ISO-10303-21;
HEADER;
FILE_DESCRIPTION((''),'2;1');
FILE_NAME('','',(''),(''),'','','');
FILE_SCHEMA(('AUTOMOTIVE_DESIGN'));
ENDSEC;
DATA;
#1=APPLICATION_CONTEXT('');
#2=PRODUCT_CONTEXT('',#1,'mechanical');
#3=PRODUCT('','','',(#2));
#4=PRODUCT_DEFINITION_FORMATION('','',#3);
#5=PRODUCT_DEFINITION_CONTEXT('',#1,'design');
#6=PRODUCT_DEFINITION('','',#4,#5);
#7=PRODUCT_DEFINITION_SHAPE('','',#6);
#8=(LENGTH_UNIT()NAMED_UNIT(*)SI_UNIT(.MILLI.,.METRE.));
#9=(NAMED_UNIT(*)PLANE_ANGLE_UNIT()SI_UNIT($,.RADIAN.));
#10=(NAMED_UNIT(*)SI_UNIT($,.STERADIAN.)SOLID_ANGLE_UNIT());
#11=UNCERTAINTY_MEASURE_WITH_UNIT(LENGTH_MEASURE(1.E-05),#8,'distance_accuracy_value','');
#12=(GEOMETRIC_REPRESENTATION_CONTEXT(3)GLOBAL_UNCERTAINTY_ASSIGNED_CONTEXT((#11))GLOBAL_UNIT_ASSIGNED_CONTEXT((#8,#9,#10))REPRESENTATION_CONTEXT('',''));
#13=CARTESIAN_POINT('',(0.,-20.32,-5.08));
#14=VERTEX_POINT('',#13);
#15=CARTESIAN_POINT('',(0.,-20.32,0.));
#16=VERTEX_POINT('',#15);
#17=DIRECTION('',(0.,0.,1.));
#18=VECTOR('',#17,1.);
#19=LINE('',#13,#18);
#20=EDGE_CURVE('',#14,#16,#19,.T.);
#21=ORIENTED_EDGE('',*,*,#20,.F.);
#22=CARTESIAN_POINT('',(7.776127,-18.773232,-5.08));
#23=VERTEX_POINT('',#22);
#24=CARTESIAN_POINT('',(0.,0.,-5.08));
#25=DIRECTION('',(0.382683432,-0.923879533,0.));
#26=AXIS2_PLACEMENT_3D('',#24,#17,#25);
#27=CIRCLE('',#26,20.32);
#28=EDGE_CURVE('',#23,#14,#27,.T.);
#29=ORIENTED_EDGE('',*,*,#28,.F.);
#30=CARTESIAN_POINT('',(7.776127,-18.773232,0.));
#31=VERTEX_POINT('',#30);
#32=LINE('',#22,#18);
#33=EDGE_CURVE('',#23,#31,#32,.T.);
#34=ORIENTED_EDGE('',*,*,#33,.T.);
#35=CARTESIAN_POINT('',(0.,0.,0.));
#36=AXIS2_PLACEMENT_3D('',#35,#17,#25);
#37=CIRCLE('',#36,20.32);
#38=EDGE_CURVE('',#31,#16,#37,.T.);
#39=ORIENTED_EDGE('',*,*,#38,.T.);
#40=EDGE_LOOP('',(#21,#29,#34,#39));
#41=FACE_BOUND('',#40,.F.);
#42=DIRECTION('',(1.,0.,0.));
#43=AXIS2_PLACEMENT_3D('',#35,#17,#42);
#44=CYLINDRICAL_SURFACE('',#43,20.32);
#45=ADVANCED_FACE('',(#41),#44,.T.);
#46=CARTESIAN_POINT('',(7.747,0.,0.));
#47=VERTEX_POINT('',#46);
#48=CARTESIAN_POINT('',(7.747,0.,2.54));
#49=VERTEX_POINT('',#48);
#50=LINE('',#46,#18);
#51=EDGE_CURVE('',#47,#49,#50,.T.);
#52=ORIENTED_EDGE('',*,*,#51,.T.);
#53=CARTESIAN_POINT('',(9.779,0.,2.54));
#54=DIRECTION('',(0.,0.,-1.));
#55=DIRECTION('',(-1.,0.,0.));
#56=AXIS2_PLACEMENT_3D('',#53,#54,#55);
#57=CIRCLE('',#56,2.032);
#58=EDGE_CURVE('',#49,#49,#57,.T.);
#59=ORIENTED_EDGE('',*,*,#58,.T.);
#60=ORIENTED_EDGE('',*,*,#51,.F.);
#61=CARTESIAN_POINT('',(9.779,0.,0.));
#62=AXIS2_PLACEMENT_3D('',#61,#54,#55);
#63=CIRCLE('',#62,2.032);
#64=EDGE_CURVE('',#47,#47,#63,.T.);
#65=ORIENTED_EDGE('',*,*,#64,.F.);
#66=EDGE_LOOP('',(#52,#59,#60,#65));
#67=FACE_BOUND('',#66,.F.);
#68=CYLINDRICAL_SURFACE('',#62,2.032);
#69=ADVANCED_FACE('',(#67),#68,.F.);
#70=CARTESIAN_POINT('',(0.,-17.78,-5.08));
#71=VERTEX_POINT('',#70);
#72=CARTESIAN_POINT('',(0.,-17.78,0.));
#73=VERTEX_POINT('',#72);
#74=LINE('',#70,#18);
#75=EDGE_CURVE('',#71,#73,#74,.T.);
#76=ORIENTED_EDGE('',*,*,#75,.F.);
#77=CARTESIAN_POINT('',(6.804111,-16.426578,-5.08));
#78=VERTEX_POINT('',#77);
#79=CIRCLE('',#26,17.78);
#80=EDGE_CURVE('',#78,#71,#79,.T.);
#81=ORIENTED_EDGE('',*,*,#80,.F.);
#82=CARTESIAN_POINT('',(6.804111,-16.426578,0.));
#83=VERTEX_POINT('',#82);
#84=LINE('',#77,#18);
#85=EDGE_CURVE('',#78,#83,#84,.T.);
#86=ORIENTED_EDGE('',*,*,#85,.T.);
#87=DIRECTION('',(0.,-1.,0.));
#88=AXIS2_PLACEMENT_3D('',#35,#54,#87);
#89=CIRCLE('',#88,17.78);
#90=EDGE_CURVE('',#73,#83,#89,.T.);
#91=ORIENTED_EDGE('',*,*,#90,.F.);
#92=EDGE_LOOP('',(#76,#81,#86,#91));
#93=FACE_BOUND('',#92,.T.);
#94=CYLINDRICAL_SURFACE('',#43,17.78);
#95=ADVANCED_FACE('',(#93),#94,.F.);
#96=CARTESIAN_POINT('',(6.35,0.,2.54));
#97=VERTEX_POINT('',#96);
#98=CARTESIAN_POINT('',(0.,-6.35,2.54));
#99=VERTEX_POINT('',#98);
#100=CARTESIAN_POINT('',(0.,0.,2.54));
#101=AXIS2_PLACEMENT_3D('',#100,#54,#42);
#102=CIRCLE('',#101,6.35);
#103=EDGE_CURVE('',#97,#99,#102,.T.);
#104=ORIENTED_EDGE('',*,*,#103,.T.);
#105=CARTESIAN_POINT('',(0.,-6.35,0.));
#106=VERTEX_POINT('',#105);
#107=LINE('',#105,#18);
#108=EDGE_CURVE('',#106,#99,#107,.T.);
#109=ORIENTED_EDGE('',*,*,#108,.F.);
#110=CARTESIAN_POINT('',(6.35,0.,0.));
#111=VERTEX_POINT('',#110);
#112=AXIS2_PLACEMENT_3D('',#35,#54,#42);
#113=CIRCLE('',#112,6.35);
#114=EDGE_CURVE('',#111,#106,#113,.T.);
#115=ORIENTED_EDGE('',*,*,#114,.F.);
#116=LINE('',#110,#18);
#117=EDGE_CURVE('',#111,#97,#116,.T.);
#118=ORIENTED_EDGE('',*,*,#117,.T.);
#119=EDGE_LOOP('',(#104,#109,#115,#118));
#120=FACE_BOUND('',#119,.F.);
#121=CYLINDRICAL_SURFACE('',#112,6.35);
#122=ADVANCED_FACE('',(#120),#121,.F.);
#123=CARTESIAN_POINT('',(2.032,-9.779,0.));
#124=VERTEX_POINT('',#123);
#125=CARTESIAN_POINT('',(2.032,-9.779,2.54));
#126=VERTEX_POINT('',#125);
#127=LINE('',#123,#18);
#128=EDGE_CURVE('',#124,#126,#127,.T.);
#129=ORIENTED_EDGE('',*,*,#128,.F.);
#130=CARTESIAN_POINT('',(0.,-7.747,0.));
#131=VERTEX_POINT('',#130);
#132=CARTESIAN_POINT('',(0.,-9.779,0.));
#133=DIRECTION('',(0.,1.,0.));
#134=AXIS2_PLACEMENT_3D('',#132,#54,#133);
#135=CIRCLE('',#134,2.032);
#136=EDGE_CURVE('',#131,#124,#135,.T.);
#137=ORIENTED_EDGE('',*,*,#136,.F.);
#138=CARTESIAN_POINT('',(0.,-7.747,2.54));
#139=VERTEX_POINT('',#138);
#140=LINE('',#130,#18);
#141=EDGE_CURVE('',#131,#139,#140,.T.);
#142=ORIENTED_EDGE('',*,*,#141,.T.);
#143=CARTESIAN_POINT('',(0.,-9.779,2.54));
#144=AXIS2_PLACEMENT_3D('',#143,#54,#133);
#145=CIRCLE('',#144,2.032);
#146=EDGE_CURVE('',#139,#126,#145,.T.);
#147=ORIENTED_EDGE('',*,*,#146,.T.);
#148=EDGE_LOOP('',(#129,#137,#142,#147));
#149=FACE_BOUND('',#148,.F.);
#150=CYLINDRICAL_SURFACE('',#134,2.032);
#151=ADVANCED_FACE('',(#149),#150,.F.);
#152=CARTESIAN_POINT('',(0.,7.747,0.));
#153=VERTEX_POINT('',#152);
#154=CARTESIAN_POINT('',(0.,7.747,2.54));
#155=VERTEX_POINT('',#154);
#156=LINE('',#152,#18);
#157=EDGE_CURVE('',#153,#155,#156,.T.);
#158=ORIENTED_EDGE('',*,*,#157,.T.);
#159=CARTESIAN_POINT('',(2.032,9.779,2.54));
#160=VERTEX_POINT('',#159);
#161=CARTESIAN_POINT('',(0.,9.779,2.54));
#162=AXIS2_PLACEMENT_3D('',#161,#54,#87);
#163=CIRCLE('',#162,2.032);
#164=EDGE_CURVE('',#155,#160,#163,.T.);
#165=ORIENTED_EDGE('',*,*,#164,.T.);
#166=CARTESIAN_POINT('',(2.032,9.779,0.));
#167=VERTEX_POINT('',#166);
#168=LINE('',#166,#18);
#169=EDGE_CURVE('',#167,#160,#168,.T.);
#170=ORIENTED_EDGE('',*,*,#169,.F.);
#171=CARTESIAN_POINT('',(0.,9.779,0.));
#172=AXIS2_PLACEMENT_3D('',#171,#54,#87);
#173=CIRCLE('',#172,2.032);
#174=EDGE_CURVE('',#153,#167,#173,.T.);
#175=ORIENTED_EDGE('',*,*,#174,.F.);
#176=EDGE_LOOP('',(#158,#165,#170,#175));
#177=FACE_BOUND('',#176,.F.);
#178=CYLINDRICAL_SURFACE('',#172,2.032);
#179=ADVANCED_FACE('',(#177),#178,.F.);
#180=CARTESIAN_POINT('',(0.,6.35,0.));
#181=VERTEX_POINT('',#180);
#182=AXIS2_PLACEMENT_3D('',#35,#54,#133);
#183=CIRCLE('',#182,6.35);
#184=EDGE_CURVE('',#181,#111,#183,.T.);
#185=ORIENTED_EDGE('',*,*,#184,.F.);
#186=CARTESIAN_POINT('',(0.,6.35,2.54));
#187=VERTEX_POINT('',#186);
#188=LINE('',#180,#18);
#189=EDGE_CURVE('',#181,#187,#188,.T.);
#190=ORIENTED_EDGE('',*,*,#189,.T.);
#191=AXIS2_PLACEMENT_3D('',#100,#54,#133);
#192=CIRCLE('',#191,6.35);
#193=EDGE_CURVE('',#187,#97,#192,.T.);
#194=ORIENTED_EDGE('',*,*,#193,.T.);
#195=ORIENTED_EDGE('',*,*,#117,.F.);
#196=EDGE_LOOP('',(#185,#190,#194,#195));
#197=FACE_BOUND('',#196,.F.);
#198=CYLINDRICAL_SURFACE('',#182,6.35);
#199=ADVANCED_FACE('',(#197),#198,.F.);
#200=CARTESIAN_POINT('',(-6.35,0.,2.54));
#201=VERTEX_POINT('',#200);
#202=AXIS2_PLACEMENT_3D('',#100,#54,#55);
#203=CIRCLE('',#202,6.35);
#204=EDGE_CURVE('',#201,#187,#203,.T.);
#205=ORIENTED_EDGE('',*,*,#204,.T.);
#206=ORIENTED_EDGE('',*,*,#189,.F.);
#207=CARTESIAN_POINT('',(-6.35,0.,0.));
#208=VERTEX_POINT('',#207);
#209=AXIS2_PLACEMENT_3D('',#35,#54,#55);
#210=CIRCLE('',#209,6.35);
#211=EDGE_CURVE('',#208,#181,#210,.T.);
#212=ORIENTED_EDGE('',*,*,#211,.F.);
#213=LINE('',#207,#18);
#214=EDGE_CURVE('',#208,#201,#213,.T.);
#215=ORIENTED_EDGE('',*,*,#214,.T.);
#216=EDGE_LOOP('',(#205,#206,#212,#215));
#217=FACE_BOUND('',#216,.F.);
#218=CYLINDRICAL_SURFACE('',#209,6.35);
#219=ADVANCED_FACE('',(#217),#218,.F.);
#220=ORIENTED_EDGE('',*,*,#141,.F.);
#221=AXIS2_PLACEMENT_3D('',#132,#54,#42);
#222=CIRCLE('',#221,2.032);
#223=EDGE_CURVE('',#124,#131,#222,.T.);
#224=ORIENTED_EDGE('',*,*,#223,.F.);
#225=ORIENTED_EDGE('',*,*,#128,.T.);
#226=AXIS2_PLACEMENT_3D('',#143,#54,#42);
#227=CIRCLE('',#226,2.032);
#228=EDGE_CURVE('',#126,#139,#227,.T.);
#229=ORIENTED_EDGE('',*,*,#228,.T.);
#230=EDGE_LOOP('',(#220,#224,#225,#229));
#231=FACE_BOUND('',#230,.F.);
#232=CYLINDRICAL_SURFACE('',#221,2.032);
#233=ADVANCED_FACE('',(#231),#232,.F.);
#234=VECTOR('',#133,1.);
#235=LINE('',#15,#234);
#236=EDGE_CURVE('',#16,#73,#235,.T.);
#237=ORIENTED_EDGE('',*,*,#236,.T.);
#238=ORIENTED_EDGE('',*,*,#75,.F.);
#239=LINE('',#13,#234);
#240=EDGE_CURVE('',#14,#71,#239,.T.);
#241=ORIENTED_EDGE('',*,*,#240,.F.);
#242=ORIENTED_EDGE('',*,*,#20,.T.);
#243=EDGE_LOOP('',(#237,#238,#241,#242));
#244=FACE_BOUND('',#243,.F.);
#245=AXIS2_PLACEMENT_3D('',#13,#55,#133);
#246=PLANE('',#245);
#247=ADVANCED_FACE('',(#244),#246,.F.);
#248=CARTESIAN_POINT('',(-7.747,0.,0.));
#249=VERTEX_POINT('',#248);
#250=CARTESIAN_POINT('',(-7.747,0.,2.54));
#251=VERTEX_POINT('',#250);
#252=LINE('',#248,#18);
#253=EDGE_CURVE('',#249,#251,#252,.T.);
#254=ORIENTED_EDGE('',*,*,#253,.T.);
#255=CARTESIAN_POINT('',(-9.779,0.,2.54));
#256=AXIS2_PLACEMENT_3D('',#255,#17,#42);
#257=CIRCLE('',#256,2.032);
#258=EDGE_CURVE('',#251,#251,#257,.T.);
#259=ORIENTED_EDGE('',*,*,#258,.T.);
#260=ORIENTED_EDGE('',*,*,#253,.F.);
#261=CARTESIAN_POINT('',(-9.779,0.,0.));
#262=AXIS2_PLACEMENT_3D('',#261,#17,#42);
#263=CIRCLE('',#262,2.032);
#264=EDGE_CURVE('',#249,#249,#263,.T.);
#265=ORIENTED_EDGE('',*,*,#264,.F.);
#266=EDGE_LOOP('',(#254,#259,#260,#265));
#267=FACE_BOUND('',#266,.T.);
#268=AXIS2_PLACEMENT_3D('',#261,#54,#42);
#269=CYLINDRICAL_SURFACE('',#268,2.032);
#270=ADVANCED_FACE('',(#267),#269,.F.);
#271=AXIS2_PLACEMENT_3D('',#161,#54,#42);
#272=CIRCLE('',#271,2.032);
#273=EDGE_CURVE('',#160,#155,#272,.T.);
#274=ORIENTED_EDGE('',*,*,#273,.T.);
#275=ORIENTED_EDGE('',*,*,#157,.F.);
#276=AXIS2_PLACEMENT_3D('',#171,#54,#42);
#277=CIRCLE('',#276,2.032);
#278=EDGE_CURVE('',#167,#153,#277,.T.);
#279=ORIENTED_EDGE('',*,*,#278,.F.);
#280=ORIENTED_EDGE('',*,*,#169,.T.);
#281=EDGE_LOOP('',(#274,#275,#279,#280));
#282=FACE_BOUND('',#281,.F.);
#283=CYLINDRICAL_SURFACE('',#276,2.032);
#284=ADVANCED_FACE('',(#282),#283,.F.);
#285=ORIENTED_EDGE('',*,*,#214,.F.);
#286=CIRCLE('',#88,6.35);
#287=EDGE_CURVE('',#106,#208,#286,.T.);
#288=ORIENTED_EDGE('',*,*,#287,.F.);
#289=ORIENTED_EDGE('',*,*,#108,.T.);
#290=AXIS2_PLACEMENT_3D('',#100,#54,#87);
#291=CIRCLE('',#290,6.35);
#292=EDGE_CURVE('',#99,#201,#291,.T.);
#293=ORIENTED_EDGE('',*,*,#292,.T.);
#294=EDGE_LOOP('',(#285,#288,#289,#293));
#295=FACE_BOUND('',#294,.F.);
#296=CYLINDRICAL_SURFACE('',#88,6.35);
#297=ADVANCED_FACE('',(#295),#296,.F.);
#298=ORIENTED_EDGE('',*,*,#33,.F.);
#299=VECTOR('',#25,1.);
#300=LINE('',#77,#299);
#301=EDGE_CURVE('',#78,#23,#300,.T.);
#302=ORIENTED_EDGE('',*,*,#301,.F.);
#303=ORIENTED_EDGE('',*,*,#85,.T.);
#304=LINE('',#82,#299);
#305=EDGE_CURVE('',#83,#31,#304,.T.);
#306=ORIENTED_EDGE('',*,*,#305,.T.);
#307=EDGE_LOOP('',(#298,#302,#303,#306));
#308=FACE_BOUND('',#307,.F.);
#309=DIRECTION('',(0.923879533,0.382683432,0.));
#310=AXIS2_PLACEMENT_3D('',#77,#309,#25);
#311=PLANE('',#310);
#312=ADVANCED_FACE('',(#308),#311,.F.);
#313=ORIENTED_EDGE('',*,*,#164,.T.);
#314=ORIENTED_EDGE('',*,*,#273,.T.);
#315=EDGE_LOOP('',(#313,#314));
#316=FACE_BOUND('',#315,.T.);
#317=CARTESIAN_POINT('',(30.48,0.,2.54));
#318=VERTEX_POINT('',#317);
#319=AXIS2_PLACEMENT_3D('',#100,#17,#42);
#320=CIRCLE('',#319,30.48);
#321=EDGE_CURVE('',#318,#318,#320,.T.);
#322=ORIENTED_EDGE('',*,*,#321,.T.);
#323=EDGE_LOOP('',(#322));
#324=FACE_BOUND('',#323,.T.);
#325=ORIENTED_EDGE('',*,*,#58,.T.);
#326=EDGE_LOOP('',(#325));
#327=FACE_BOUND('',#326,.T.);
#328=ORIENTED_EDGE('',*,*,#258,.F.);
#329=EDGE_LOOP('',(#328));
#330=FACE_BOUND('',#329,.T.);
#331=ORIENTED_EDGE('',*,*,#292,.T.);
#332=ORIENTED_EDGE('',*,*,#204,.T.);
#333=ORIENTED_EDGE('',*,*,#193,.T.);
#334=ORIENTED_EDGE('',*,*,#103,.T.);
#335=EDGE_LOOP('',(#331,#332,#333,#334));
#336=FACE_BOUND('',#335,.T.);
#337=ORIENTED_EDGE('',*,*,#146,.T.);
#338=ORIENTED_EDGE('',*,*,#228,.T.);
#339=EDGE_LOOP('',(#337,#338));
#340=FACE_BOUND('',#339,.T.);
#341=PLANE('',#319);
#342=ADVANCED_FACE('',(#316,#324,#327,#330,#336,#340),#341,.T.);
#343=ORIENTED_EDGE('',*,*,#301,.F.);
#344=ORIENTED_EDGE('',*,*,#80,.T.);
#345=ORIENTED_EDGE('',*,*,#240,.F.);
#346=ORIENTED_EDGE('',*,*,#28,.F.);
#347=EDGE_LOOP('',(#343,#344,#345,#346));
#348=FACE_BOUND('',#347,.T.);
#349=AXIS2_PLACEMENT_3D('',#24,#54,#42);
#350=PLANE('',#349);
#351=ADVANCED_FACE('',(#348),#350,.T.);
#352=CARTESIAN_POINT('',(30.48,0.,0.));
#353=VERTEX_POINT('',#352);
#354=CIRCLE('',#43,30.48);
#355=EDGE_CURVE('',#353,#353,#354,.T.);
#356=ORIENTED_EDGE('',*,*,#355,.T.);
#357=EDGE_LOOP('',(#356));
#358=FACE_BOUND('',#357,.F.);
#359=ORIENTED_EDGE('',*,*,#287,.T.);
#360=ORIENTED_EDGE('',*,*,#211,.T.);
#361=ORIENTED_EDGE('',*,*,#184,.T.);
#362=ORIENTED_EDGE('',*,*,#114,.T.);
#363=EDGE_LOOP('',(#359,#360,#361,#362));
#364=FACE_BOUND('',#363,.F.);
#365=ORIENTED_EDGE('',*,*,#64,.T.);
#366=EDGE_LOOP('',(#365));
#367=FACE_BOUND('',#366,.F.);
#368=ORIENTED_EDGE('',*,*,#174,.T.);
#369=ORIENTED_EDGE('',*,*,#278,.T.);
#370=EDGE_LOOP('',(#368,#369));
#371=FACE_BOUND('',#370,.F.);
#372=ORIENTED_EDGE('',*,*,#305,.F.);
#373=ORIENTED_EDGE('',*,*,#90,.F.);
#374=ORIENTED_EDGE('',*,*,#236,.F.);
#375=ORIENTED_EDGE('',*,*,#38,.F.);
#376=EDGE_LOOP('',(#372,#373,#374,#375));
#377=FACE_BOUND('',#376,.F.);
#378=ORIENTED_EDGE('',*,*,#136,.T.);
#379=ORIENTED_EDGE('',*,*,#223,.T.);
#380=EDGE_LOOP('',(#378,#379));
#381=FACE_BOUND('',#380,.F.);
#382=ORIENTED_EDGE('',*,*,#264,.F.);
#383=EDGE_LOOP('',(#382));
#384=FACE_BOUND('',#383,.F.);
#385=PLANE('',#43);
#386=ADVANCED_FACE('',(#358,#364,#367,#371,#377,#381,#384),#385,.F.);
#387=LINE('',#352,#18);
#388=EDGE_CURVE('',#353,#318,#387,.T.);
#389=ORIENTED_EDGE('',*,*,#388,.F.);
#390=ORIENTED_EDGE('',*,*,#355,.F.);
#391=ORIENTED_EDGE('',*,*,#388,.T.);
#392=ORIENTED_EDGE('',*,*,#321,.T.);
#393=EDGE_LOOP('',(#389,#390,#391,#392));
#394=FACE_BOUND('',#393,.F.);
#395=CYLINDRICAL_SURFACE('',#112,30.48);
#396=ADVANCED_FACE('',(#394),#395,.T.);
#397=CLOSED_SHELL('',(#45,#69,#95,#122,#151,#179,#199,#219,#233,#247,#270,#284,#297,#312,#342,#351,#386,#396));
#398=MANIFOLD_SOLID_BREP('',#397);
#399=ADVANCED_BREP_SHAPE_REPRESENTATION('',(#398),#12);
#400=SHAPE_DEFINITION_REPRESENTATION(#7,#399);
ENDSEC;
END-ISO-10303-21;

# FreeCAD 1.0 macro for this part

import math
import FreeCAD as App
import Part
import Sketcher
Q = App.Units.Quantity

doc = App.newDocument("Part")
body = doc.addObject("PartDesign::Body", "Body")

sketch1 = doc.addObject("Sketcher::SketchObject", "Sketch")
body.addObject(sketch1)
sketch1.AttachmentSupport = (doc.XY_Plane, [""])
sketch1.MapMode = "FlatFace"
sketch1.addGeometry([
    Part.Circle(App.Vector(0, 0, 0), App.Vector(0, 0, 1), 30.48),
    Part.ArcOfCircle(Part.Circle(App.Vector(0, -9.779, 0), App.Vector(0, 0, 1), 2.032), math.radians(0), math.radians(90)),
    Part.ArcOfCircle(Part.Circle(App.Vector(0, -9.779, 0), App.Vector(0, 0, 1), 2.032), math.radians(90), math.radians(360)),
    Part.Circle(App.Vector(-9.779, 0, 0), App.Vector(0, 0, 1), 2.032),
    Part.ArcOfCircle(Part.Circle(App.Vector(0, 9.779, 0), App.Vector(0, 0, 1), 2.032), math.radians(0), math.radians(270)),
    Part.ArcOfCircle(Part.Circle(App.Vector(0, 9.779, 0), App.Vector(0, 0, 1), 2.032), math.radians(-90), math.radians(0)),
    Part.ArcOfCircle(Part.Circle(App.Vector(0, 0, 0), App.Vector(0, 0, 1), 6.35), math.radians(90), math.radians(180)),
    Part.ArcOfCircle(Part.Circle(App.Vector(0, 0, 0), App.Vector(0, 0, 1), 6.35), math.radians(0), math.radians(90)),
    Part.ArcOfCircle(Part.Circle(App.Vector(0, 0, 0), App.Vector(0, 0, 1), 6.35), math.radians(-90), math.radians(0)),
    Part.ArcOfCircle(Part.Circle(App.Vector(0, 0, 0), App.Vector(0, 0, 1), 6.35), math.radians(180), math.radians(270)),
    Part.Circle(App.Vector(9.779, 0, 0), App.Vector(0, 0, 1), 2.032),
], False)
sketch1.addConstraint([
    Sketcher.Constraint("Tangent", 1, 1, 2, 2),
    Sketcher.Constraint("Coincident", 2, 1, 1, 2),
    Sketcher.Constraint("Tangent", 4, 1, 5, 2),
    Sketcher.Constraint("Coincident", 5, 1, 4, 2),
    Sketcher.Constraint("Tangent", 6, 1, 7, 2),
    Sketcher.Constraint("Tangent", 7, 1, 8, 2),
    Sketcher.Constraint("Tangent", 8, 1, 9, 2),
    Sketcher.Constraint("Tangent", 9, 1, 6, 2),
    Sketcher.Constraint("Coincident", 0, 3, -1, 1),
    Sketcher.Constraint("Coincident", 6, 3, -1, 1),
    Sketcher.Constraint("Equal", 2, 3),
    Sketcher.Constraint("Equal", 3, 4),
    Sketcher.Constraint("Equal", 6, 7),
    Sketcher.Constraint("Equal", 5, 10),
    Sketcher.Constraint("Symmetric", 1, 3, 4, 3, -1, 1),
    Sketcher.Constraint("Symmetric", 3, 3, 10, 3, -1, 1),
    Sketcher.Constraint("Symmetric", 1, 1, 4, 1, -1),
    Sketcher.Constraint("PointOnObject", 3, 3, -1),
    Sketcher.Constraint("PointOnObject", 2, 1, -2),
    Sketcher.Constraint("PointOnObject", 5, 1, -2),
    Sketcher.Constraint("PointOnObject", 6, 1, -2),
    Sketcher.Constraint("PointOnObject", 7, 1, -1),
    Sketcher.Constraint("PointOnObject", 8, 1, -2),
    Sketcher.Constraint("PointOnObject", 9, 1, -1),
    Sketcher.Constraint("Horizontal", 2, 3, 1, 1),
    Sketcher.Constraint("Diameter", 0, Q("2.4 in")),
    Sketcher.Constraint("Diameter", 3, Q("0.16 in")),
    Sketcher.Constraint("Radius", 6, Q("0.25 in")),
    Sketcher.Constraint("DistanceY", 1, 3, 4, 3, Q("0.77 in")),
    Sketcher.Constraint("DistanceX", 3, 3, -1, 1, Q("0.385 in")),
])
pad1 = doc.addObject("PartDesign::Pad", "Pad")
body.addObject(pad1)
pad1.Profile = sketch1
pad1.Length = Q("0.1 in")

sketch2 = doc.addObject("Sketcher::SketchObject", "Sketch001")
body.addObject(sketch2)
sketch2.AttachmentSupport = (doc.XY_Plane, [""])
sketch2.MapMode = "FlatFace"
sketch2.addGeometry([
    Part.Circle(App.Vector(0, 0, 0), App.Vector(0, 0, 1), 20.32),
    Part.Circle(App.Vector(0, 0, 0), App.Vector(0, 0, 1), 17.78),
], False)
sketch2.addConstraint([
    Sketcher.Constraint("Coincident", 0, 3, -1, 1),
    Sketcher.Constraint("Coincident", 1, 3, -1, 1),
    Sketcher.Constraint("Diameter", 0, Q("1.6 in")),
    Sketcher.Constraint("Diameter", 1, Q("1.4 in")),
])
pad2 = doc.addObject("PartDesign::Pad", "Pad001")
body.addObject(pad2)
pad2.Profile = sketch2
pad2.Length = Q("0.2 in")
pad2.Reversed = True

sketch3 = doc.addObject("Sketcher::SketchObject", "Sketch002")
body.addObject(sketch3)
sketch3.AttachmentSupport = (doc.XY_Plane, [""])
sketch3.MapMode = "FlatFace"
sketch3.AttachmentOffset = App.Placement(App.Vector(0, 0, -0.2 * 25.4), App.Rotation())
sketch3.addGeometry([
    Part.LineSegment(App.Vector(6.804111, -16.426578, 0), App.Vector(7.776127, -18.773232, 0)),
    Part.ArcOfCircle(Part.Circle(App.Vector(0, 0, 0), App.Vector(0, 0, 1), 20.32), math.radians(-90), math.radians(-67.5)),
    Part.LineSegment(App.Vector(0, -20.32, 0), App.Vector(0, -17.78, 0)),
    Part.ArcOfCircle(Part.Circle(App.Vector(0, 0, 0), App.Vector(0, 0, 1), 17.78), math.radians(-90), math.radians(-67.5)),
], False)
sketch3.addConstraint([
    Sketcher.Constraint("Coincident", 0, 2, 1, 2),
    Sketcher.Constraint("Coincident", 1, 1, 2, 1),
    Sketcher.Constraint("Coincident", 2, 2, 3, 1),
    Sketcher.Constraint("Coincident", 3, 2, 0, 1),
    Sketcher.Constraint("Vertical", 2),
    Sketcher.Constraint("Coincident", 1, 3, -1, 1),
    Sketcher.Constraint("Coincident", 3, 3, -1, 1),
    Sketcher.Constraint("PointOnObject", 1, 1, -2),
    Sketcher.Constraint("Radius", 1, Q("0.8 in")),
    Sketcher.Constraint("Radius", 3, Q("0.7 in")),
    Sketcher.Constraint("Angle", 0, Q("-67.5 deg")),
    Sketcher.Constraint("DistanceX", -1, 1, 3, 2, Q("6.804111 mm")),
])
pocket1 = doc.addObject("PartDesign::Pocket", "Pocket")
body.addObject(pocket1)
pocket1.Profile = sketch3
pocket1.Length = Q("0.2 in")
pocket1.Reversed = True

doc.recompute()
